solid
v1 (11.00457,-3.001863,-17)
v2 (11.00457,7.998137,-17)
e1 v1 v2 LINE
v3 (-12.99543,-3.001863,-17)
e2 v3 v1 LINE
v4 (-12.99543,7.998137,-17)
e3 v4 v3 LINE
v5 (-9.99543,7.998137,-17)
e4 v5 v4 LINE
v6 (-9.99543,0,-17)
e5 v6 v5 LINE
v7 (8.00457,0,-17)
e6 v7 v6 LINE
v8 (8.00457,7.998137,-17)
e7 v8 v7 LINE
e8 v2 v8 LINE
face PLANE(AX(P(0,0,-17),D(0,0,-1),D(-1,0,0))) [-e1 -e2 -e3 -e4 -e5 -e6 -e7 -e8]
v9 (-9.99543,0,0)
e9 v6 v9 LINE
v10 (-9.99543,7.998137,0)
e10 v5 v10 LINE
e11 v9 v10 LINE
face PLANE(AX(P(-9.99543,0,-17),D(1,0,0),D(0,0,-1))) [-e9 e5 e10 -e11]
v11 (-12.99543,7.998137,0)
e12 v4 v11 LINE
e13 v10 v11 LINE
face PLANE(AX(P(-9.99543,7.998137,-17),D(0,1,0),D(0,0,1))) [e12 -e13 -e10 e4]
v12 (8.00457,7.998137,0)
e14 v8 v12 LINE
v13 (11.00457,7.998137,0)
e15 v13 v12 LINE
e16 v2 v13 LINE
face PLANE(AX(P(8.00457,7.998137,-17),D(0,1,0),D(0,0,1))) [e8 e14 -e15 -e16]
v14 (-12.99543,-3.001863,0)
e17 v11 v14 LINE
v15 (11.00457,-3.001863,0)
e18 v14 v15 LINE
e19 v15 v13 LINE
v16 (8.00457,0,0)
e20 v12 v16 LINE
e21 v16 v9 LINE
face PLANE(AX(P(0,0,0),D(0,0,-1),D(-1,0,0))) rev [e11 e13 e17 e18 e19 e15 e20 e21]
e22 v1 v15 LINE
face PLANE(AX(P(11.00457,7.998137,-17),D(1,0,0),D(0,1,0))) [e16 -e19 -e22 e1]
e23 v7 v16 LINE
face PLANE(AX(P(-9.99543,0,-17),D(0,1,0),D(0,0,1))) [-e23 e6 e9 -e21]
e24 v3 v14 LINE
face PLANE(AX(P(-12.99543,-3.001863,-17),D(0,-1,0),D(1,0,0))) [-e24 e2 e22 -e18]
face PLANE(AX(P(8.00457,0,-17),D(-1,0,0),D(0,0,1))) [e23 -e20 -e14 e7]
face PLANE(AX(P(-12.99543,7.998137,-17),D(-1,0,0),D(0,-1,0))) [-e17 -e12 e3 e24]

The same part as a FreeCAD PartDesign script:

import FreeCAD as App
import Part
import Sketcher

V = App.Vector


def add_polygon(sketch, points):
    """Adds a closed chain of lines whose ends are joined by coincident constraints."""
    first, n = sketch.GeometryCount, len(points)
    for a, b in zip(points, points[1:] + points[:1]):
        sketch.addGeometry(Part.LineSegment(App.Vector(*a, 0), App.Vector(*b, 0)), False)
    for i in range(n):
        sketch.addConstraint(Sketcher.Constraint("Coincident", first + i, 2, first + (i + 1) % n, 1))

doc = App.newDocument("Part")
body = doc.addObject("PartDesign::Body", "Body")

# Sketch on XY plane
sketch1 = body.newObject("Sketcher::SketchObject", "Sketch")
sketch1.AttachmentSupport = (doc.getObject("XY_Plane"), [""])
sketch1.MapMode = "FlatFace"
add_polygon(sketch1, [(-9.99543, 0), (-9.99543, 7.998137), (-12.99543, 7.998137), (-12.99543, -3.001863), (11.00457, -3.001863), (11.00457, 7.998137), (8.00457, 7.998137), (8.00457, 0)])  # lines 0-7
sketch1.addConstraint([
    Sketcher.Constraint("Vertical", 0),
    Sketcher.Constraint("Horizontal", 1),
    Sketcher.Constraint("Vertical", 2),
    Sketcher.Constraint("Horizontal", 3),
    Sketcher.Constraint("Vertical", 4),
    Sketcher.Constraint("Horizontal", 5),
    Sketcher.Constraint("Vertical", 6),
    Sketcher.Constraint("Horizontal", 7),
    Sketcher.Constraint("PointOnObject", 6, 2, -1),
    Sketcher.Constraint("Horizontal", 1, 2, 4, 2),
    Sketcher.Constraint("Equal", 1, 5),
    Sketcher.Constraint("DistanceX", 1, 2, 1, 1, 3.0),
    Sketcher.Constraint("DistanceX", 3, 1, 3, 2, 24.0),
    Sketcher.Constraint("DistanceY", 2, 2, 2, 1, 11.0),
    Sketcher.Constraint("DistanceY", 0, 1, 0, 2, 7.998137),
    Sketcher.Constraint("DistanceX", 0, 2, -1, 1, 9.99543),
])
pad1 = body.newObject("PartDesign::Pad", "Pad")
pad1.Profile = sketch1
pad1.Length = 17
pad1.Reversed = True

doc.recompute()
